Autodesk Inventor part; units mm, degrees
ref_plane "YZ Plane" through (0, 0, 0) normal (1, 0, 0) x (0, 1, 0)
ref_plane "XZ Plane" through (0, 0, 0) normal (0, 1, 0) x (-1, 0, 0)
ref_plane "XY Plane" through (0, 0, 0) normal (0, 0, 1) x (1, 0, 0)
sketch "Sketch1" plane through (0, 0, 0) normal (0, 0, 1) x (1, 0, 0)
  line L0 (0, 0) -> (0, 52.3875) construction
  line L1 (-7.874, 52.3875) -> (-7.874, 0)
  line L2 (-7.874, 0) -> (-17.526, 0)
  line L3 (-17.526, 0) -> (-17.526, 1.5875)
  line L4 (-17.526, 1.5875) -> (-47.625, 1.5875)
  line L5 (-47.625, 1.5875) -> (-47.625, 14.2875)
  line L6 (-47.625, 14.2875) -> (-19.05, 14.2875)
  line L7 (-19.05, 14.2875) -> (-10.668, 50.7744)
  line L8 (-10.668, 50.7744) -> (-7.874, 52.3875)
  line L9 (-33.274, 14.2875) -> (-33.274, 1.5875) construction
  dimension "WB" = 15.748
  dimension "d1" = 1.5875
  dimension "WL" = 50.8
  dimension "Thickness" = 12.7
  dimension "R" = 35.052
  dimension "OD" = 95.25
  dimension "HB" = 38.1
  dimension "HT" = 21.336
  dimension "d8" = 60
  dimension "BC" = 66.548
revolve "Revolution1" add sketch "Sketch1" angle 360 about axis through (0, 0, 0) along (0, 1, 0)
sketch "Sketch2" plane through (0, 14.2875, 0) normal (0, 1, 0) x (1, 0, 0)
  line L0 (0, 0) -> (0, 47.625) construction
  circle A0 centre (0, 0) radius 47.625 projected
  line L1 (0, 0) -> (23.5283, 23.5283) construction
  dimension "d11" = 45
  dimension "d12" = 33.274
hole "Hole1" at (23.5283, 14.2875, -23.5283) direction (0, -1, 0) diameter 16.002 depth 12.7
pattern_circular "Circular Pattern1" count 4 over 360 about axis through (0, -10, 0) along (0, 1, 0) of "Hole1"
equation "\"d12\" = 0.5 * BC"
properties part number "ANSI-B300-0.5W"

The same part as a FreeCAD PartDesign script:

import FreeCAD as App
import Part
import Sketcher

V = App.Vector
Q = App.Units.Quantity


def add_polygon(sketch, points):
    """Adds a closed chain of lines whose ends are joined by coincident constraints."""
    first, n = sketch.GeometryCount, len(points)
    for a, b in zip(points, points[1:] + points[:1]):
        sketch.addGeometry(Part.LineSegment(App.Vector(*a, 0), App.Vector(*b, 0)), False)
    for i in range(n):
        sketch.addConstraint(Sketcher.Constraint("Coincident", first + i, 2, first + (i + 1) % n, 1))

doc = App.newDocument("Part")
params = doc.addObject("Spreadsheet::Sheet", "Params")
for row, (alias, value) in enumerate([
    ("sketch1_height", "0.5 in"),
    ("sketch1_height2", "0.0625 in"),
    ("sketch1_width", "0.38 in"),
    ("sketch1_width2", "1.125 in"),
    ("sketch1_width3", "1.185 in"),
    ("revolution_angle", "360 deg"),
    ("sketch2_diameter", "0.63 in"),
    ("hole_diameter", "0.63 in"),
    ("hole_depth", "0.5 in"),
], start=1):
    params.set(f"A{row}", alias)
    params.set(f"B{row}", "=" + value)
    params.setAlias(f"B{row}", alias)

body = doc.addObject("PartDesign::Body", "Body")

# Sketch on XY plane
sketch1 = body.newObject("Sketcher::SketchObject", "Sketch")
sketch1.AttachmentSupport = (doc.getObject("XY_Plane"), [""])
sketch1.MapMode = "FlatFace"
add_polygon(sketch1, [(-7.9, 0), (-7.9, 52.4), (-10.7, 50.8), (-19.1, 14.3), (-47.6, 14.3), (-47.6, 1.6), (-17.5, 1.6), (-17.5, 0)])  # lines 0-7
sketch1.addConstraint([
    Sketcher.Constraint("Vertical", 0),
    Sketcher.Constraint("Horizontal", 3),
    Sketcher.Constraint("Vertical", 4),
    Sketcher.Constraint("Horizontal", 5),
    Sketcher.Constraint("Vertical", 6),
    Sketcher.Constraint("Horizontal", 7),
    Sketcher.Constraint("PointOnObject", 6, 2, -1),
    Sketcher.Constraint("DistanceY", 4, 2, 4, 1, Q("0.5 in")),
    Sketcher.Constraint("DistanceY", 4, 2, 0, 2, Q("2 in")),
    Sketcher.Constraint("DistanceY", 6, 2, 6, 1, Q("0.0625 in")),
    Sketcher.Constraint("Angle", 1, Q("-150.0003 deg")),
    Sketcher.Constraint("DistanceX", 7, 1, 7, 2, Q("0.38 in")),
    Sketcher.Constraint("DistanceX", 3, 2, 3, 1, Q("1.125 in")),
    Sketcher.Constraint("DistanceX", 5, 1, 5, 2, Q("1.185 in")),
    Sketcher.Constraint("DistanceX", 0, 2, -1, 1, Q("0.31 in")),
    Sketcher.Constraint("DistanceX", 1, 2, -1, 1, Q("0.42 in")),
])
sketch1.setExpression("Constraints[15]", "Params.sketch1_height")
sketch1.setExpression("Constraints[17]", "Params.sketch1_height2")
sketch1.setExpression("Constraints[19]", "Params.sketch1_width")
sketch1.setExpression("Constraints[20]", "Params.sketch1_width2")
sketch1.setExpression("Constraints[21]", "Params.sketch1_width3")
revolution = body.newObject("PartDesign::Revolution", "Revolution")
revolution.Profile = sketch1
revolution.ReferenceAxis = (sketch1, ["V_Axis"])
revolution.setExpression("Angle", "Params.revolution_angle")

# Sketch on XZ plane
sketch2 = body.newObject("Sketcher::SketchObject", "Sketch001")
sketch2.AttachmentSupport = (doc.getObject("XZ_Plane"), [""])
sketch2.MapMode = "FlatFace"
sketch2.AttachmentOffset = App.Placement(V(0, 0, -0.5625 * 25.4), App.Rotation())
sketch2.addGeometry(Part.Circle(V(24, -24, 0), V(0, 0, 1), 8), False)
sketch2.addConstraint([
    Sketcher.Constraint("Diameter", 0, Q("0.63 in")),
    Sketcher.Constraint("DistanceX", -1, 1, 0, 3, Q("0.9263 in")),
    Sketcher.Constraint("DistanceY", 0, 3, -1, 1, Q("0.9263 in")),
])
sketch2.setExpression("Constraints[0]", "Params.sketch2_diameter")
doc.recompute()
hole = body.newObject("PartDesign::Hole", "Hole")
hole.Profile = sketch2
hole.ThreadType = "None"
hole.setExpression("Diameter", "Params.hole_diameter")
hole.DepthType = "Dimension"
hole.setExpression("Depth", "Params.hole_depth")
hole.DrillPoint = "Flat"
hole.Reversed = True
doc.recompute()

polarpattern = body.newObject("PartDesign::PolarPattern", "PolarPattern")
polarpattern.Originals = [hole]
polarpattern.Axis = (doc.getObject("Y_Axis"), [""])
polarpattern.Angle = 360
polarpattern.Occurrences = 4
body.Tip = polarpattern

doc.recompute()
